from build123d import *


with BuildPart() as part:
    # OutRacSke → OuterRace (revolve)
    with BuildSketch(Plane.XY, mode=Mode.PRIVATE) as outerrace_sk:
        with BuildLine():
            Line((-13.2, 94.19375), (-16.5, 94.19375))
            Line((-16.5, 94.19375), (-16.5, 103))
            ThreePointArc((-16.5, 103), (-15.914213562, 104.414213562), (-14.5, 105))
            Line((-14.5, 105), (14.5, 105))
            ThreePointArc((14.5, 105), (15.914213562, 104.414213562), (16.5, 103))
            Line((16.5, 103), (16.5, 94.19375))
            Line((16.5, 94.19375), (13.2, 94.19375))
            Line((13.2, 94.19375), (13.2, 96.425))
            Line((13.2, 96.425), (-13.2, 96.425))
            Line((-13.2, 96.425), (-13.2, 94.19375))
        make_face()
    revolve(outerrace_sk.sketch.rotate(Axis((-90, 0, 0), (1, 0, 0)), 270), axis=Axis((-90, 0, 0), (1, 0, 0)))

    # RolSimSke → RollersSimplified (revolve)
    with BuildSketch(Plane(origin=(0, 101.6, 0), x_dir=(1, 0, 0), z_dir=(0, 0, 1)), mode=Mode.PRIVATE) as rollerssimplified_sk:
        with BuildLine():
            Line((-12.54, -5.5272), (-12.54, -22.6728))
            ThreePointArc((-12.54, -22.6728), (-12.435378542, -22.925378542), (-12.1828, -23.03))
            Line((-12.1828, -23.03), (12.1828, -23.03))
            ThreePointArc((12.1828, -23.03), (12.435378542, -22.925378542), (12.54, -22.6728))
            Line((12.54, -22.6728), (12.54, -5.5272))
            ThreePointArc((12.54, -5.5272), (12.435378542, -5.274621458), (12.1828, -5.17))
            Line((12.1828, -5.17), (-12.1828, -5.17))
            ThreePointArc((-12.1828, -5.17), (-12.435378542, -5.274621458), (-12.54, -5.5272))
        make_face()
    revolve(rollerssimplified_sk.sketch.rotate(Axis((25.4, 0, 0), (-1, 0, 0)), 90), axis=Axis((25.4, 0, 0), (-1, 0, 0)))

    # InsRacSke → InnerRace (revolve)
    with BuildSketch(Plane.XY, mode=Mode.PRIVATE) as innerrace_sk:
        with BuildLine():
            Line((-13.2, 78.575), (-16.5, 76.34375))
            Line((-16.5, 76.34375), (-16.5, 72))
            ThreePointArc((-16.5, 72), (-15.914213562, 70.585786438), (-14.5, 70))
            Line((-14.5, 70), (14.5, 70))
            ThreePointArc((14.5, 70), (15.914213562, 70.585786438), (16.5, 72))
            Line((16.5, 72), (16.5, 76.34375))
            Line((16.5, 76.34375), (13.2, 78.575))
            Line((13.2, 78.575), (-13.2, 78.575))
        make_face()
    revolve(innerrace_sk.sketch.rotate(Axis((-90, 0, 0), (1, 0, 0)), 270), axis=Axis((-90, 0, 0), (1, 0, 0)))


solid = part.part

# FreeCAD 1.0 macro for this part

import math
import FreeCAD as App
import Part
import Sketcher

doc = App.newDocument("Part")
body = doc.addObject("PartDesign::Body", "Body")

# Sketch on XY plane
sketch1 = body.newObject("Sketcher::SketchObject", "Sketch")
sketch1.AttachmentSupport = (doc.getObject("XY_Plane"), [""])
sketch1.MapMode = "FlatFace"
sketch1.addGeometry([
    Part.LineSegment(App.Vector(-16.5, 94.2, 0), App.Vector(-13.2, 94.2, 0)),  # 0
    Part.LineSegment(App.Vector(-13.2, 94.2, 0), App.Vector(-13.2, 96.4, 0)),  # 1
    Part.LineSegment(App.Vector(-13.2, 96.4, 0), App.Vector(13.2, 96.4, 0)),  # 2
    Part.LineSegment(App.Vector(13.2, 96.4, 0), App.Vector(13.2, 94.2, 0)),  # 3
    Part.LineSegment(App.Vector(13.2, 94.2, 0), App.Vector(16.5, 94.2, 0)),  # 4
    Part.LineSegment(App.Vector(16.5, 94.2, 0), App.Vector(16.5, 103, 0)),  # 5
    Part.ArcOfCircle(Part.Circle(App.Vector(14.5, 103, 0), App.Vector(0, 0, 1), 2), math.radians(0), math.radians(90)),  # 6
    Part.LineSegment(App.Vector(14.5, 105, 0), App.Vector(-14.5, 105, 0)),  # 7
    Part.ArcOfCircle(Part.Circle(App.Vector(-14.5, 103, 0), App.Vector(0, 0, 1), 2), math.radians(90), math.radians(180)),  # 8
    Part.LineSegment(App.Vector(-16.5, 103, 0), App.Vector(-16.5, 94.2, 0)),  # 9
], False)
sketch1.addConstraint([
    Sketcher.Constraint("Coincident", 0, 2, 1, 1),
    Sketcher.Constraint("Coincident", 1, 2, 2, 1),
    Sketcher.Constraint("Coincident", 2, 2, 3, 1),
    Sketcher.Constraint("Coincident", 3, 2, 4, 1),
    Sketcher.Constraint("Coincident", 4, 2, 5, 1),
    Sketcher.Constraint("Tangent", 5, 2, 6, 1),
    Sketcher.Constraint("Tangent", 6, 2, 7, 1),
    Sketcher.Constraint("Tangent", 7, 2, 8, 1),
    Sketcher.Constraint("Tangent", 8, 2, 9, 1),
    Sketcher.Constraint("Coincident", 9, 2, 0, 1),
    Sketcher.Constraint("Horizontal", 0),
    Sketcher.Constraint("Vertical", 1),
    Sketcher.Constraint("Horizontal", 2),
    Sketcher.Constraint("Vertical", 3),
    Sketcher.Constraint("Horizontal", 4),
    Sketcher.Constraint("Vertical", 5),
    Sketcher.Constraint("Horizontal", 7),
    Sketcher.Constraint("Vertical", 9),
    Sketcher.Constraint("Equal", 6, 8),
    Sketcher.Constraint("Symmetric", 0, 2, 3, 2, -2),
    Sketcher.Constraint("Equal", 0, 4),
    Sketcher.Constraint("Radius", 6, 2.0),
    Sketcher.Constraint("DistanceX", 7, 2, 7, 1, 29.0),
    Sketcher.Constraint("DistanceX", 0, 1, 0, 2, 3.3),
    Sketcher.Constraint("DistanceY", -1, 1, 6, 3, 103.0),
    Sketcher.Constraint("DistanceY", -1, 1, 1, 2, 96.425),
    Sketcher.Constraint("DistanceY", 1, 1, 1, 2, 2.23125),
])
revolution = body.newObject("PartDesign::Revolution", "Revolution")
revolution.Profile = sketch1
revolution.ReferenceAxis = (sketch1, ["H_Axis"])
revolution.Angle = 360

# Sketch on XY plane
sketch2 = body.newObject("Sketcher::SketchObject", "Sketch001")
sketch2.AttachmentSupport = (doc.getObject("XY_Plane"), [""])
sketch2.MapMode = "FlatFace"
sketch2.addGeometry([
    Part.LineSegment(App.Vector(-12.54, 96.07, 0), App.Vector(-12.54, 78.93, 0)),  # 0
    Part.ArcOfCircle(Part.Circle(App.Vector(-12.18, 78.93, 0), App.Vector(0, 0, 1), 0.36), math.radians(-180), math.radians(-90)),  # 1
    Part.LineSegment(App.Vector(-12.18, 78.57, 0), App.Vector(12.18, 78.57, 0)),  # 2
    Part.ArcOfCircle(Part.Circle(App.Vector(12.18, 78.93, 0), App.Vector(0, 0, 1), 0.36), math.radians(-90), math.radians(0)),  # 3
    Part.LineSegment(App.Vector(12.54, 78.93, 0), App.Vector(12.54, 96.07, 0)),  # 4
    Part.ArcOfCircle(Part.Circle(App.Vector(12.18, 96.07, 0), App.Vector(0, 0, 1), 0.36), math.radians(0), math.radians(90)),  # 5
    Part.LineSegment(App.Vector(12.18, 96.43, 0), App.Vector(-12.18, 96.43, 0)),  # 6
    Part.ArcOfCircle(Part.Circle(App.Vector(-12.18, 96.07, 0), App.Vector(0, 0, 1), 0.36), math.radians(90), math.radians(180)),  # 7
], False)
sketch2.addConstraint([
    Sketcher.Constraint("Tangent", 0, 2, 1, 1),
    Sketcher.Constraint("Tangent", 1, 2, 2, 1),
    Sketcher.Constraint("Tangent", 2, 2, 3, 1),
    Sketcher.Constraint("Tangent", 3, 2, 4, 1),
    Sketcher.Constraint("Tangent", 4, 2, 5, 1),
    Sketcher.Constraint("Tangent", 5, 2, 6, 1),
    Sketcher.Constraint("Tangent", 6, 2, 7, 1),
    Sketcher.Constraint("Tangent", 7, 2, 0, 1),
    Sketcher.Constraint("Vertical", 0),
    Sketcher.Constraint("Horizontal", 2),
    Sketcher.Constraint("Vertical", 4),
    Sketcher.Constraint("Horizontal", 6),
    Sketcher.Constraint("Equal", 1, 3),
    Sketcher.Constraint("Equal", 3, 5),
    Sketcher.Constraint("Equal", 5, 7),
    Sketcher.Constraint("Radius", 1, 0.3572),
    Sketcher.Constraint("DistanceX", 0, 2, -1, 1, 12.54),
    Sketcher.Constraint("DistanceY", -1, 1, 1, 2, 78.57),
    Sketcher.Constraint("DistanceX", -1, 1, 3, 2, 12.54),
    Sketcher.Constraint("DistanceY", -1, 1, 5, 2, 96.43),
])
revolution2 = body.newObject("PartDesign::Revolution", "Revolution001")
revolution2.Profile = sketch2
revolution2.ReferenceAxis = (sketch2, ["H_Axis"])
revolution2.Angle = 360

# Sketch on XY plane
sketch3 = body.newObject("Sketcher::SketchObject", "Sketch002")
sketch3.AttachmentSupport = (doc.getObject("XY_Plane"), [""])
sketch3.MapMode = "FlatFace"
sketch3.addGeometry([
    Part.LineSegment(App.Vector(-13.2, 78.6, 0), App.Vector(-16.5, 76.3, 0)),  # 0
    Part.LineSegment(App.Vector(-16.5, 76.3, 0), App.Vector(-16.5, 72, 0)),  # 1
    Part.ArcOfCircle(Part.Circle(App.Vector(-14.5, 72, 0), App.Vector(0, 0, 1), 2), math.radians(-180), math.radians(-90)),  # 2
    Part.LineSegment(App.Vector(-14.5, 70, 0), App.Vector(14.5, 70, 0)),  # 3
    Part.ArcOfCircle(Part.Circle(App.Vector(14.5, 72, 0), App.Vector(0, 0, 1), 2), math.radians(-90), math.radians(0)),  # 4
    Part.LineSegment(App.Vector(16.5, 72, 0), App.Vector(16.5, 76.3, 0)),  # 5
    Part.LineSegment(App.Vector(16.5, 76.3, 0), App.Vector(13.2, 78.6, 0)),  # 6
    Part.LineSegment(App.Vector(13.2, 78.6, 0), App.Vector(-13.2, 78.6, 0)),  # 7
], False)
sketch3.addConstraint([
    Sketcher.Constraint("Coincident", 0, 2, 1, 1),
    Sketcher.Constraint("Tangent", 1, 2, 2, 1),
    Sketcher.Constraint("Tangent", 2, 2, 3, 1),
    Sketcher.Constraint("Tangent", 3, 2, 4, 1),
    Sketcher.Constraint("Tangent", 4, 2, 5, 1),
    Sketcher.Constraint("Coincident", 5, 2, 6, 1),
    Sketcher.Constraint("Coincident", 6, 2, 7, 1),
    Sketcher.Constraint("Coincident", 7, 2, 0, 1),
    Sketcher.Constraint("Vertical", 1),
    Sketcher.Constraint("Horizontal", 3),
    Sketcher.Constraint("Vertical", 5),
    Sketcher.Constraint("Horizontal", 7),
    Sketcher.Constraint("Equal", 2, 4),
    Sketcher.Constraint("Symmetric", 0, 2, 5, 2, -2),
    Sketcher.Constraint("Equal", 0, 6),
    Sketcher.Constraint("Radius", 2, 2.0),
    Sketcher.Constraint("DistanceX", 3, 1, 3, 2, 29.0),
    Sketcher.Constraint("DistanceX", 7, 2, 7, 1, 26.4),
    Sketcher.Constraint("DistanceY", -1, 1, 2, 3, 72.0),
    Sketcher.Constraint("DistanceY", -1, 1, 6, 2, 78.575),
    Sketcher.Constraint("DistanceY", 1, 2, 1, 1, 4.34375),
])
revolution3 = body.newObject("PartDesign::Revolution", "Revolution002")
revolution3.Profile = sketch3
revolution3.ReferenceAxis = (sketch3, ["H_Axis"])
revolution3.Angle = 360

doc.recompute()
